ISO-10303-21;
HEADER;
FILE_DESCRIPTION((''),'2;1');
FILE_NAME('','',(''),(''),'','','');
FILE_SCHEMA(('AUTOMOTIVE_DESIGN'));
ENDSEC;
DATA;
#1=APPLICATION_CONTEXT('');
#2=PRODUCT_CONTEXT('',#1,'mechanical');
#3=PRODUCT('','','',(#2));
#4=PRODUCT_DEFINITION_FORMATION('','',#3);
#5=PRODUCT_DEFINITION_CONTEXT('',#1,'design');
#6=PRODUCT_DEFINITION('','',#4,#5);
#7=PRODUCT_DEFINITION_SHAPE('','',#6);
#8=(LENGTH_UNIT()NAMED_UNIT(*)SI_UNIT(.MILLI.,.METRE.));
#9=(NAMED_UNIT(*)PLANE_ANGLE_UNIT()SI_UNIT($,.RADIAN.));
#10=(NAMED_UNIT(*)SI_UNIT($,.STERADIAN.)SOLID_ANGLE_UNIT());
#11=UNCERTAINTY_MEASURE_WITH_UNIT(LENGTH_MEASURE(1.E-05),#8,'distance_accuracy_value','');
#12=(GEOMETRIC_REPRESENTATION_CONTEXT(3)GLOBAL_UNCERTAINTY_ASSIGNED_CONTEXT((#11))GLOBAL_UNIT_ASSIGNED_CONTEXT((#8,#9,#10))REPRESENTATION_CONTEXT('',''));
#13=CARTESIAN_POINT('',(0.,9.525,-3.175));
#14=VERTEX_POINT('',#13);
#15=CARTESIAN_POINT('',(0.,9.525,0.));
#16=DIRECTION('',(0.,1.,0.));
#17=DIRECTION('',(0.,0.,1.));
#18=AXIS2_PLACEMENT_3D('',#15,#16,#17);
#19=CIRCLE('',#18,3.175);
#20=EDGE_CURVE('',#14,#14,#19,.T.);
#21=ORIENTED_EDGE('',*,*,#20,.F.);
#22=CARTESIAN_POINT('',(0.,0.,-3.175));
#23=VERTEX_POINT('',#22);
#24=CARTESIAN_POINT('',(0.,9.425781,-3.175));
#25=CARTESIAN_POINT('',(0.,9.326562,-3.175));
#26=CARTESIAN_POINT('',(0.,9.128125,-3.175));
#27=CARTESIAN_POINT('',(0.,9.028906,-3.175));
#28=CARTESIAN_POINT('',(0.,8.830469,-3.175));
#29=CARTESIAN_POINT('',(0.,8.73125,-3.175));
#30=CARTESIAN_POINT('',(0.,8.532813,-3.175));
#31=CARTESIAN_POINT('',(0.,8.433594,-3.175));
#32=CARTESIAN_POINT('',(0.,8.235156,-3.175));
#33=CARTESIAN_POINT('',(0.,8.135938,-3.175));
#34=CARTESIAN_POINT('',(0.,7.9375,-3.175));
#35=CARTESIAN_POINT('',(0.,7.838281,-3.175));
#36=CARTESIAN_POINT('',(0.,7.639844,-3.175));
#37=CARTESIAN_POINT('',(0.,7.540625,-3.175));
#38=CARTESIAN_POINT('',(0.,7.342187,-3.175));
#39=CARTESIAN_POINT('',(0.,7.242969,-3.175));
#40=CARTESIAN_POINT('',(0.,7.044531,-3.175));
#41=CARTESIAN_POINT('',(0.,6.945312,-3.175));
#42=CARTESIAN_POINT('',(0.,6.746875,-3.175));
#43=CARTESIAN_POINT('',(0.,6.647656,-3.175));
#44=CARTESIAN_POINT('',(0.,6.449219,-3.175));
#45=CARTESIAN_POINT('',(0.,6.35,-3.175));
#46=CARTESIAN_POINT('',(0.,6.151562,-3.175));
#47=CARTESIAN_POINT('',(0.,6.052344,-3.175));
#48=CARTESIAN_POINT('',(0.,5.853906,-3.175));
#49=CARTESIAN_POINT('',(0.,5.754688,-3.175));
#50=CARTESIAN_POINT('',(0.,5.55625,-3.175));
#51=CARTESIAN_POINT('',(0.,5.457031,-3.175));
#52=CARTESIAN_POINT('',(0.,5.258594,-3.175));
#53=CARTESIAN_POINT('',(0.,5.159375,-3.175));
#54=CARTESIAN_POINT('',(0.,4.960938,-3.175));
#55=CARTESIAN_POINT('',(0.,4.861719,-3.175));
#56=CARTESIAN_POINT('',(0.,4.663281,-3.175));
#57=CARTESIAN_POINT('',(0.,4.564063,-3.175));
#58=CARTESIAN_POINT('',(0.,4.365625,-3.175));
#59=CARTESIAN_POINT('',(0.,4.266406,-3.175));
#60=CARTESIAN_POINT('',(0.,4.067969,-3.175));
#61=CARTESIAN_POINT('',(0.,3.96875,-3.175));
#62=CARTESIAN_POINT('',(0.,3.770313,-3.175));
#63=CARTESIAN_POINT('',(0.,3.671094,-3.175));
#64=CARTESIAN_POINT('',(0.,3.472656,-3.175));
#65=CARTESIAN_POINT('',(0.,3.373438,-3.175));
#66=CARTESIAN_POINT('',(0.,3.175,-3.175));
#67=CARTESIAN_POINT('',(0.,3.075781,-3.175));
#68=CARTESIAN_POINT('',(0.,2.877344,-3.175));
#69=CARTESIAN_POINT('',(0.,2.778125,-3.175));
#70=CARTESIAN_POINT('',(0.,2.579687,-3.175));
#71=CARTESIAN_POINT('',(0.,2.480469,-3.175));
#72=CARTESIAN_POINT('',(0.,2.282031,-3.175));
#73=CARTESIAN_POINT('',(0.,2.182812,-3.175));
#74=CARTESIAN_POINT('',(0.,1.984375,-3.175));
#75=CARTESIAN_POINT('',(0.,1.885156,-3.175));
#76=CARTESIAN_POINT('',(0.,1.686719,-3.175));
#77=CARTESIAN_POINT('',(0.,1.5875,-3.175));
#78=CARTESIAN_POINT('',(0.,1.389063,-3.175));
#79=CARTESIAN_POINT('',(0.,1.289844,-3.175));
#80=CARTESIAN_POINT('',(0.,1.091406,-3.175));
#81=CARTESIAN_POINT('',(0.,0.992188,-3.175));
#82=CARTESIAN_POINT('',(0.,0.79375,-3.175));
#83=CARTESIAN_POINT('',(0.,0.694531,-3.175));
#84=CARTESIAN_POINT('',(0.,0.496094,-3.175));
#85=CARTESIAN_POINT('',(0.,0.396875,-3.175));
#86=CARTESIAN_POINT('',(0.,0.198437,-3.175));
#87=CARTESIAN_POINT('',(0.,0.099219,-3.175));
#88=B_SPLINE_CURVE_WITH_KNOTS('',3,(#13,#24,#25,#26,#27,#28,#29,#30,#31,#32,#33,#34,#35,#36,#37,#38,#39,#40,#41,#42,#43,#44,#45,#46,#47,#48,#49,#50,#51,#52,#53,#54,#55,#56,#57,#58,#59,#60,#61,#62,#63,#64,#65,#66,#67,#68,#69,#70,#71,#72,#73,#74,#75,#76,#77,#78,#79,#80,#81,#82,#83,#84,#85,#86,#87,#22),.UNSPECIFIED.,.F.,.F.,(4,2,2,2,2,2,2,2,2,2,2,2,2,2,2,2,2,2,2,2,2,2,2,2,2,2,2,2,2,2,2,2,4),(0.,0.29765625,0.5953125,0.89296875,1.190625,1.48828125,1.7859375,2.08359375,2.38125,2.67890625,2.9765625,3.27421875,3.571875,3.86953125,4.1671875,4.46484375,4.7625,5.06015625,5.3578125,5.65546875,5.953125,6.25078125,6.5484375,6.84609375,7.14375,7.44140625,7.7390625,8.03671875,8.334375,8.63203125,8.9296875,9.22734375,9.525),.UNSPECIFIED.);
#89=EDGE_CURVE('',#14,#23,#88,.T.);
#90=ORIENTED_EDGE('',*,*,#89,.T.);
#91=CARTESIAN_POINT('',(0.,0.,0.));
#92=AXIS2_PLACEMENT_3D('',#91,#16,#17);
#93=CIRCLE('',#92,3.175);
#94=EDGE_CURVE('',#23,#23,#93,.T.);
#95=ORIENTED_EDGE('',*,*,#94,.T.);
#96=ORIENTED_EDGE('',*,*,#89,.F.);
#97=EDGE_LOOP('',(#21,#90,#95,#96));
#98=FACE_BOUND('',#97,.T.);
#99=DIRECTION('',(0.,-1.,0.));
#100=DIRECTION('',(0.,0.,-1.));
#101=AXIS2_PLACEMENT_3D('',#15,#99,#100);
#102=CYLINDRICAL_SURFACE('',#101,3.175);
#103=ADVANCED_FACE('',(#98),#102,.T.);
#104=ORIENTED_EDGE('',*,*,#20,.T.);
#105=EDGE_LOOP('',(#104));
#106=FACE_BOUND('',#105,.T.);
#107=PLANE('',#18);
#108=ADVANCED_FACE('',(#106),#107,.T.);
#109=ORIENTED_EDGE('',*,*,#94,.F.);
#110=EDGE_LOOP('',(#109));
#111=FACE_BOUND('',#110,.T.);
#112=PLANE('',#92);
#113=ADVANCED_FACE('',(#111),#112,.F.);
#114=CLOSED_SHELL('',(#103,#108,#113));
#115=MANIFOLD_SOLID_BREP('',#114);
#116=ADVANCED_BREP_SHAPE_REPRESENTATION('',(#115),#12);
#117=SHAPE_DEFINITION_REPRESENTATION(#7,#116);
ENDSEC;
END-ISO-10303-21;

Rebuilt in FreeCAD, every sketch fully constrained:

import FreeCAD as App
import Part
import Sketcher

V = App.Vector
Q = App.Units.Quantity

doc = App.newDocument("Part")
body = doc.addObject("PartDesign::Body", "Body")

# Sketch on XZ plane
sketch1 = body.newObject("Sketcher::SketchObject", "Sketch")
sketch1.AttachmentSupport = (doc.getObject("XZ_Plane"), [""])
sketch1.MapMode = "FlatFace"
sketch1.addGeometry(Part.Circle(V(0, 0, 0), V(0, 0, 1), 3.2), False)
sketch1.addConstraint([
    Sketcher.Constraint("Coincident", 0, 3, -1, 1),
    Sketcher.Constraint("Diameter", 0, Q("0.25 in")),
])
pad1 = body.newObject("PartDesign::Pad", "Pad")
pad1.Profile = sketch1
pad1.Length = Q("0.375 in")
pad1.Reversed = True

doc.recompute()
